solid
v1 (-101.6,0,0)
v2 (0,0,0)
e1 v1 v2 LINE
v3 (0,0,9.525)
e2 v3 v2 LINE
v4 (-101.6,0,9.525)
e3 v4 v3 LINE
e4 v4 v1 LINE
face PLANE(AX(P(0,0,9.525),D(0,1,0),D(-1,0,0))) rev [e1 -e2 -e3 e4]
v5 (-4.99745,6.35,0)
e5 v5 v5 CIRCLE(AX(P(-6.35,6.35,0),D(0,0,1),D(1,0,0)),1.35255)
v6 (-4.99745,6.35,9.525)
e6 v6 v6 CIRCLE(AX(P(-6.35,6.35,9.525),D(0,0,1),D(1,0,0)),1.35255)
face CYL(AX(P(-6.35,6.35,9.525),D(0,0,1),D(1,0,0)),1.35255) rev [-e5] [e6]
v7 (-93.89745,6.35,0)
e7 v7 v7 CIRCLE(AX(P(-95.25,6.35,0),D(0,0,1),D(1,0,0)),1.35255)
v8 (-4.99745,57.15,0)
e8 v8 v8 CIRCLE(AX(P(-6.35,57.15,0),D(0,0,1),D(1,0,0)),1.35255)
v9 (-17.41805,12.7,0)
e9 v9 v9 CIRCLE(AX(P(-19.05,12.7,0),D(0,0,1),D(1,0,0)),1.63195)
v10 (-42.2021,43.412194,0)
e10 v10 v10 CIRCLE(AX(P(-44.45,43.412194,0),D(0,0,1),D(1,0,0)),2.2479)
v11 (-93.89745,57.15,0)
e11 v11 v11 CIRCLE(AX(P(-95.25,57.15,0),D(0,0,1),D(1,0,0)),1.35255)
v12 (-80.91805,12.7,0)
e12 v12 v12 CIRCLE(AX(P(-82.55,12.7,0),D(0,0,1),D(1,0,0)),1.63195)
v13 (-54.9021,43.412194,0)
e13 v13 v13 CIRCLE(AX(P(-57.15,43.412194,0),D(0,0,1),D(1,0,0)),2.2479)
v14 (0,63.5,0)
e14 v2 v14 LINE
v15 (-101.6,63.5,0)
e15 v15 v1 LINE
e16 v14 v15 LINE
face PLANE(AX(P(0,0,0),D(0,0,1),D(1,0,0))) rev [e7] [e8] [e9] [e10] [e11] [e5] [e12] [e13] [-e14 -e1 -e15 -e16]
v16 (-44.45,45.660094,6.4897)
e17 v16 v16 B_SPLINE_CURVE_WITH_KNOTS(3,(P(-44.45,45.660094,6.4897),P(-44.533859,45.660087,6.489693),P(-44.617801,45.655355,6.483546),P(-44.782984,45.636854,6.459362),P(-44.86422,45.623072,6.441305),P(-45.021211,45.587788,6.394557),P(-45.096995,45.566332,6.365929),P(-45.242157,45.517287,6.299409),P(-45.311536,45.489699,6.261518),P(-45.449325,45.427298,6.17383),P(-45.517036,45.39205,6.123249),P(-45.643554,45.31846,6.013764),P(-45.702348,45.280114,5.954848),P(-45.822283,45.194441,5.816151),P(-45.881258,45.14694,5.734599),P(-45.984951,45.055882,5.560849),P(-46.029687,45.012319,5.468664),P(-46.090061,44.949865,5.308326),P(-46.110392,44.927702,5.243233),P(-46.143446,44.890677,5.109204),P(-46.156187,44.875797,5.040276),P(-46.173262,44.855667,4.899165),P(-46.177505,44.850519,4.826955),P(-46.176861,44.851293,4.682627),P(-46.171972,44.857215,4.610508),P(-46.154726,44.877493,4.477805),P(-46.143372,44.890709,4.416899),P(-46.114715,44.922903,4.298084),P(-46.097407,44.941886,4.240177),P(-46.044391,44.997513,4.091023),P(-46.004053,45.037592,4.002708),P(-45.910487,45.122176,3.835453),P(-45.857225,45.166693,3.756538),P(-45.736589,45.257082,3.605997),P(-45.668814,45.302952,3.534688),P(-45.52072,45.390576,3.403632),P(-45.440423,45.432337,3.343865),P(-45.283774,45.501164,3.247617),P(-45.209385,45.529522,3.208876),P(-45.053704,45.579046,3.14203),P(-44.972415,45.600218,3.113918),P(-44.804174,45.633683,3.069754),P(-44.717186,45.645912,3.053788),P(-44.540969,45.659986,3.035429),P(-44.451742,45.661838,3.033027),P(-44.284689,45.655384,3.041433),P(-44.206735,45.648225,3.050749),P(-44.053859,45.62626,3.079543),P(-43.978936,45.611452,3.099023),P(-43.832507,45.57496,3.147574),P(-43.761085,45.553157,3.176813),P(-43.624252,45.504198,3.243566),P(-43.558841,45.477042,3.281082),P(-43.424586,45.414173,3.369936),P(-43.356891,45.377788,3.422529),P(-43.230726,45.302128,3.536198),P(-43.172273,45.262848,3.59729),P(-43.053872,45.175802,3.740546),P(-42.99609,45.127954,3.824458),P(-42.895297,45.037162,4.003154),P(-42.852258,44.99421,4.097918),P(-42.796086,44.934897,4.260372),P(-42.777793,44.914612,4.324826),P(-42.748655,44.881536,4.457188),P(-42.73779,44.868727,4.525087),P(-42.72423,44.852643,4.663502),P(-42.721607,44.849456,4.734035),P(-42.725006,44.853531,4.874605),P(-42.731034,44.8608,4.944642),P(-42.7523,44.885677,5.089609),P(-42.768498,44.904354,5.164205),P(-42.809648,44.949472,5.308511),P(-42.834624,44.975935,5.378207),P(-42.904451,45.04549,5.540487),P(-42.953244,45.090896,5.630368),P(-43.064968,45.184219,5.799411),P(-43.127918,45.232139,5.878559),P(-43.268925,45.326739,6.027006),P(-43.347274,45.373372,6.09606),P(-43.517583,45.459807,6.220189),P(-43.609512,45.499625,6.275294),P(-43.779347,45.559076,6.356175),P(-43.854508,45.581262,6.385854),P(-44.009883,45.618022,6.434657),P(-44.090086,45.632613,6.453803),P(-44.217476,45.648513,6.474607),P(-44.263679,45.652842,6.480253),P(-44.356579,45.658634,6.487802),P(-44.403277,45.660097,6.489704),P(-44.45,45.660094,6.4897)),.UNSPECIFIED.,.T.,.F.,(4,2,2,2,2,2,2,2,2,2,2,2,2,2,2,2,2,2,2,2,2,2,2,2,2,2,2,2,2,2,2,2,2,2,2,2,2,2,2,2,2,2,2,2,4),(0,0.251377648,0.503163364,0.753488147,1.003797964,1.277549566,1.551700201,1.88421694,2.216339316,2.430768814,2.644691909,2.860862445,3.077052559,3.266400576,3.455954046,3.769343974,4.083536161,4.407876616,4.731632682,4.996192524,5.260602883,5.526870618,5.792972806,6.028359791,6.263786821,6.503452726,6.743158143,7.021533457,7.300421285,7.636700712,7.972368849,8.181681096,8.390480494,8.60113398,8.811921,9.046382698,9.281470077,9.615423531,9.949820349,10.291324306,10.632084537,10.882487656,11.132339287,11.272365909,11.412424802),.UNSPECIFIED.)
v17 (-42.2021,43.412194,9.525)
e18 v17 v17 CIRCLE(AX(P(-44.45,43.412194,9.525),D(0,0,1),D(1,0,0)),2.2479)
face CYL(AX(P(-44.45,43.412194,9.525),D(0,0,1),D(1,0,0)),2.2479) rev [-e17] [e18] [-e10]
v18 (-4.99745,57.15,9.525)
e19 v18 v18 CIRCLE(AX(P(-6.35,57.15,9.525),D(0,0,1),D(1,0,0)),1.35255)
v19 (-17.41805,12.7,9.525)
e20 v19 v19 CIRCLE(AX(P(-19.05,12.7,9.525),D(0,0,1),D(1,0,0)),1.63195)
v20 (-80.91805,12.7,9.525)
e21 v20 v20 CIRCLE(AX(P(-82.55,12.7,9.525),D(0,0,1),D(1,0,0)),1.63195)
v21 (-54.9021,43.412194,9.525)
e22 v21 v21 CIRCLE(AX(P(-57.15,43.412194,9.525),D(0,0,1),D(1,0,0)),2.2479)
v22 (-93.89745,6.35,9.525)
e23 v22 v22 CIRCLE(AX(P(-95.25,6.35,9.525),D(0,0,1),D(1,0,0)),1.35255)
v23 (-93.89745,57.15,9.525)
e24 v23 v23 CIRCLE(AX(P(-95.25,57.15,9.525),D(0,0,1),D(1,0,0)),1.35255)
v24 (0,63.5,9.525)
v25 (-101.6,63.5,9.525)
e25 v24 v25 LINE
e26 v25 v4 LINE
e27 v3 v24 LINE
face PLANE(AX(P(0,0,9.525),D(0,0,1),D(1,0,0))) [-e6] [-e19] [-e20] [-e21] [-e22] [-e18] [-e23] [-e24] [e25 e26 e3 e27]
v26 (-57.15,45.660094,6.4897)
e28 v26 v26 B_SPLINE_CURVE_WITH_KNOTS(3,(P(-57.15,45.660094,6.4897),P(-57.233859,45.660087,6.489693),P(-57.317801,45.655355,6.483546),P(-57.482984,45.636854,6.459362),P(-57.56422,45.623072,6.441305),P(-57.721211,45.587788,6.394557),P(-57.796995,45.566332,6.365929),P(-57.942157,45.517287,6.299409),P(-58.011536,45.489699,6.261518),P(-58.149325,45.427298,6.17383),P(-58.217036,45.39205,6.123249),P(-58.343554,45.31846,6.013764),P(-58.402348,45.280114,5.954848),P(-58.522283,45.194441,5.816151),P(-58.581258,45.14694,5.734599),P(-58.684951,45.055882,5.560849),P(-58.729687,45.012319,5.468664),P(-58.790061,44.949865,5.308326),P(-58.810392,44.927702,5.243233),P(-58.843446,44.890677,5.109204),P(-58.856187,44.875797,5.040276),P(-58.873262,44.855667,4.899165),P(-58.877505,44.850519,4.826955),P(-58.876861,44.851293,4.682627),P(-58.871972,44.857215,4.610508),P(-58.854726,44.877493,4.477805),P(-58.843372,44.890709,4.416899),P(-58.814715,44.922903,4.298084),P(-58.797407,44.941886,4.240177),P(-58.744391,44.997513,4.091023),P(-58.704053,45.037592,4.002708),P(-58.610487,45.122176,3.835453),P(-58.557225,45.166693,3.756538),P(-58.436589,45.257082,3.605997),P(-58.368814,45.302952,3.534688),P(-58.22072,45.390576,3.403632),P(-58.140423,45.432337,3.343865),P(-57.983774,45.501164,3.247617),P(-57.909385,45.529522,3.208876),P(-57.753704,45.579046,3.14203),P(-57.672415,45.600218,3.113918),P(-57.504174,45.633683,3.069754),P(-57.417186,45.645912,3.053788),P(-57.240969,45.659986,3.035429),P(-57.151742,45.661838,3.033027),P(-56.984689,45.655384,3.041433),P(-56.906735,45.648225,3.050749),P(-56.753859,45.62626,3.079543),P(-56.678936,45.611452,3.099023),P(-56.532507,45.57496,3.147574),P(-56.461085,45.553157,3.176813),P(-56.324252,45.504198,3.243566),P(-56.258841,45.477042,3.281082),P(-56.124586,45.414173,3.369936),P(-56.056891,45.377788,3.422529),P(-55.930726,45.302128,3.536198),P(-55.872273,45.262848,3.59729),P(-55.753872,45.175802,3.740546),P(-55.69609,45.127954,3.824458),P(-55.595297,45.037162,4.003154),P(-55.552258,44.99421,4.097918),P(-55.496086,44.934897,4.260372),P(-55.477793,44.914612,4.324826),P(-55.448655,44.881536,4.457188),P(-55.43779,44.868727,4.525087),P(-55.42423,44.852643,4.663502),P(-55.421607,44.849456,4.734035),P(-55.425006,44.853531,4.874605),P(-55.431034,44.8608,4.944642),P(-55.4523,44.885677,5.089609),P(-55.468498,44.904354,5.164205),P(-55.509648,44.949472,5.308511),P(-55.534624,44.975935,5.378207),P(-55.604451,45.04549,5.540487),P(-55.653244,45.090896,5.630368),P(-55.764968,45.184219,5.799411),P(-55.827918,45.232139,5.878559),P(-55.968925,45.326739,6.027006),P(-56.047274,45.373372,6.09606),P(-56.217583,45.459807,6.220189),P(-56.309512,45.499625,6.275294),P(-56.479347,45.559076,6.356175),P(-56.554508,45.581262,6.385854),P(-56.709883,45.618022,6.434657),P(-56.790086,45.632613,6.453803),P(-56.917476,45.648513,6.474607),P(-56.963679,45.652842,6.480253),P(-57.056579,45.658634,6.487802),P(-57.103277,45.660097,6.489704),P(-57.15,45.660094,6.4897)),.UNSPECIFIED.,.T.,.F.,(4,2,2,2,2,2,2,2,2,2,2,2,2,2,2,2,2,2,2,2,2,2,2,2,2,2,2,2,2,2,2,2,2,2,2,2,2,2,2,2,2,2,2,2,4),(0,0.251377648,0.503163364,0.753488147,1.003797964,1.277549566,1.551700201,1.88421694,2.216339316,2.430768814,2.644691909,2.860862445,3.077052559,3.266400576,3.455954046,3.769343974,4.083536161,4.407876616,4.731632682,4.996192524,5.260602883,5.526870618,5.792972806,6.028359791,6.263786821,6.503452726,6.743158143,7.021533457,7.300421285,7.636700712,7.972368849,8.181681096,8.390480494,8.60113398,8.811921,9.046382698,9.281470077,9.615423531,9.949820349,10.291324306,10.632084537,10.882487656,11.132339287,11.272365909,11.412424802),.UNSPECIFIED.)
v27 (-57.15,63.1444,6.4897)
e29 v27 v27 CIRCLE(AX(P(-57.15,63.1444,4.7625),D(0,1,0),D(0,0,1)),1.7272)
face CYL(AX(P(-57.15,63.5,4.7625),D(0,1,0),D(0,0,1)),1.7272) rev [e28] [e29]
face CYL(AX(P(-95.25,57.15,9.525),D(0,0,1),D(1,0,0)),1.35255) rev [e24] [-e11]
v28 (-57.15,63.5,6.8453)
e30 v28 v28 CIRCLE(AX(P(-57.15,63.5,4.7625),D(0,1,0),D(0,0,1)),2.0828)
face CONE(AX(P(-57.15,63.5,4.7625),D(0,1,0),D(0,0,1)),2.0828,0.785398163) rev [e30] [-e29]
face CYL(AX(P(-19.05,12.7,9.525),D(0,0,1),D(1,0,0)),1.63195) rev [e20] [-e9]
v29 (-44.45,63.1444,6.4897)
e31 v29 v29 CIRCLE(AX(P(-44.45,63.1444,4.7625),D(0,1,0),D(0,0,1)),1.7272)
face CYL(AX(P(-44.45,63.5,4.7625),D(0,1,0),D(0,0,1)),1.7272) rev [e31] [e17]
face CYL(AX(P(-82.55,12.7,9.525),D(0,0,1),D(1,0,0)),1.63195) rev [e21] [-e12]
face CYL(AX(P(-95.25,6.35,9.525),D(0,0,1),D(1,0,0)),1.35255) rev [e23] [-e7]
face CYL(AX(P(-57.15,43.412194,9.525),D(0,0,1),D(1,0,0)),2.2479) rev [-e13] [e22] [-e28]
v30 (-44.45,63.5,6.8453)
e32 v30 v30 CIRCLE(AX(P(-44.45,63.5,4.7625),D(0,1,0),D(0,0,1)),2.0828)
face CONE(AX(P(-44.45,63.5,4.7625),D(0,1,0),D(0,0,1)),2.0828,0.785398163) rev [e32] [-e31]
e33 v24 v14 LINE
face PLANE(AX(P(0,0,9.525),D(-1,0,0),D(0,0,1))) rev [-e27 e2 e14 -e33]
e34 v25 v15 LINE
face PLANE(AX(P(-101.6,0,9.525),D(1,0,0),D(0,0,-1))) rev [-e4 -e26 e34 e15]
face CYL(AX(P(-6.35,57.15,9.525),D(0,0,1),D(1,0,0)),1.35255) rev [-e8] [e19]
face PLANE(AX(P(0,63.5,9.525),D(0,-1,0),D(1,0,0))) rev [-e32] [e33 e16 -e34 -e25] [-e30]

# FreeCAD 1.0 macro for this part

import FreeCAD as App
import Part
import Sketcher
Q = App.Units.Quantity

doc = App.newDocument("Part")
body = doc.addObject("PartDesign::Body", "Body")

# Sketch on XY plane
sketch1 = body.newObject("Sketcher::SketchObject", "Sketch")
sketch1.AttachmentSupport = (doc.getObject("XY_Plane"), [""])
sketch1.MapMode = "FlatFace"
sketch1.addGeometry(Part.LineSegment(App.Vector(-101.6, 63.5, 0), App.Vector(-101.6, 0, 0)), False)
sketch1.addGeometry(Part.LineSegment(App.Vector(-101.6, 0, 0), App.Vector(0, 0, 0)), False)
sketch1.addGeometry(Part.LineSegment(App.Vector(0, 0, 0), App.Vector(0, 63.5, 0)), False)
sketch1.addGeometry(Part.LineSegment(App.Vector(0, 63.5, 0), App.Vector(-101.6, 63.5, 0)), False)
sketch1.addConstraint(Sketcher.Constraint("Coincident", 0, 2, 1, 1))
sketch1.addConstraint(Sketcher.Constraint("Coincident", 1, 2, 2, 1))
sketch1.addConstraint(Sketcher.Constraint("Coincident", 2, 2, 3, 1))
sketch1.addConstraint(Sketcher.Constraint("Coincident", 3, 2, 0, 1))
sketch1.addConstraint(Sketcher.Constraint("Vertical", 0))
sketch1.addConstraint(Sketcher.Constraint("Horizontal", 1))
sketch1.addConstraint(Sketcher.Constraint("Vertical", 2))
sketch1.addConstraint(Sketcher.Constraint("Horizontal", 3))
sketch1.addConstraint(Sketcher.Constraint("Coincident", 1, 2, -1, 1))
sketch1.addConstraint(Sketcher.Constraint("DistanceX", 1, 1, 1, 2, Q("4 in")))
sketch1.addConstraint(Sketcher.Constraint("DistanceY", 0, 2, 0, 1, Q("2.5 in")))
pad1 = body.newObject("PartDesign::Pad", "Pad")
pad1.Profile = sketch1
pad1.Length = Q("0.375 in")

# Sketch on XZ plane
sketch2 = body.newObject("Sketcher::SketchObject", "Sketch001")
sketch2.AttachmentSupport = (doc.getObject("XZ_Plane"), [""])
sketch2.MapMode = "FlatFace"
sketch2.AttachmentOffset = App.Placement(App.Vector(0, 0, -2.5 * 25.4), App.Rotation())
sketch2.addGeometry(Part.Circle(App.Vector(-44.45, 4.7625, 0), App.Vector(0, 0, 1), 1.7272), False)
sketch2.addGeometry(Part.Circle(App.Vector(-57.15, 4.7625, 0), App.Vector(0, 0, 1), 1.7272), False)
sketch2.addConstraint(Sketcher.Constraint("Equal", 0, 1))
sketch2.addConstraint(Sketcher.Constraint("Horizontal", 0, 3, 1, 3))
sketch2.addConstraint(Sketcher.Constraint("Diameter", 0, Q("0.136 in")))
sketch2.addConstraint(Sketcher.Constraint("DistanceX", 1, 3, 0, 3, Q("0.5 in")))
sketch2.addConstraint(Sketcher.Constraint("DistanceX", 0, 3, -1, 1, Q("1.75 in")))
sketch2.addConstraint(Sketcher.Constraint("DistanceY", -1, 1, 0, 3, Q("0.1875 in")))
doc.recompute()
hole = body.newObject("PartDesign::Hole", "Hole")
hole.Profile = sketch2
hole.ThreadType = "None"
hole.Diameter = Q("0.136 in")
hole.DepthType = "Dimension"
hole.Depth = Q("0.75 in")
hole.DrillPoint = "Angled"
hole.DrillPointAngle = 118
hole.HoleCutType = "Countersink"
hole.HoleCutDiameter = Q("0.164 in")
hole.HoleCutCountersinkAngle = 90
hole.Reversed = True

# Sketch on XY plane
sketch3 = body.newObject("Sketcher::SketchObject", "Sketch002")
sketch3.AttachmentSupport = (doc.getObject("XY_Plane"), [""])
sketch3.MapMode = "FlatFace"
sketch3.AttachmentOffset = App.Placement(App.Vector(0, 0, 0.375 * 25.4), App.Rotation())
sketch3.addGeometry(Part.Circle(App.Vector(-44.45, 43.412194, 0), App.Vector(0, 0, 1), 2.2479), False)
sketch3.addGeometry(Part.Circle(App.Vector(-57.15, 43.412194, 0), App.Vector(0, 0, 1), 2.2479), False)
sketch3.addConstraint(Sketcher.Constraint("Equal", 0, 1))
sketch3.addConstraint(Sketcher.Constraint("Horizontal", 0, 3, 1, 3))
sketch3.addConstraint(Sketcher.Constraint("Diameter", 0, Q("0.177 in")))
sketch3.addConstraint(Sketcher.Constraint("DistanceX", 1, 3, 0, 3, Q("0.5 in")))
sketch3.addConstraint(Sketcher.Constraint("DistanceX", 0, 3, -1, 1, Q("1.75 in")))
sketch3.addConstraint(Sketcher.Constraint("DistanceY", -1, 1, 0, 3, 43.412194))
doc.recompute()
hole2 = body.newObject("PartDesign::Hole", "Hole001")
hole2.Profile = sketch3
hole2.ThreadType = "None"
hole2.Diameter = Q("0.177 in")
hole2.DepthType = "Dimension"
hole2.Depth = Q("1 in")
hole2.DrillPoint = "Angled"
hole2.DrillPointAngle = 118

# Sketch on XY plane
sketch4 = body.newObject("Sketcher::SketchObject", "Sketch003")
sketch4.AttachmentSupport = (doc.getObject("XY_Plane"), [""])
sketch4.MapMode = "FlatFace"
sketch4.AttachmentOffset = App.Placement(App.Vector(0, 0, 0.375 * 25.4), App.Rotation())
sketch4.addGeometry(Part.Circle(App.Vector(-95.25, 6.35, 0), App.Vector(0, 0, 1), 1.35255), False)
sketch4.addGeometry(Part.Circle(App.Vector(-95.25, 57.15, 0), App.Vector(0, 0, 1), 1.35255), False)
sketch4.addGeometry(Part.Circle(App.Vector(-6.35, 6.35, 0), App.Vector(0, 0, 1), 1.35255), False)
sketch4.addGeometry(Part.Circle(App.Vector(-6.35, 57.15, 0), App.Vector(0, 0, 1), 1.35255), False)
sketch4.addConstraint(Sketcher.Constraint("Equal", 0, 1))
sketch4.addConstraint(Sketcher.Constraint("Equal", 1, 2))
sketch4.addConstraint(Sketcher.Constraint("Equal", 2, 3))
sketch4.addConstraint(Sketcher.Constraint("Horizontal", 0, 3, 2, 3))
sketch4.addConstraint(Sketcher.Constraint("Horizontal", 1, 3, 3, 3))
sketch4.addConstraint(Sketcher.Constraint("Vertical", 0, 3, 1, 3))
sketch4.addConstraint(Sketcher.Constraint("Vertical", 2, 3, 3, 3))
sketch4.addConstraint(Sketcher.Constraint("DistanceY", 0, 3, 1, 3, Q("2 in")))
sketch4.addConstraint(Sketcher.Constraint("Diameter", 0, Q("0.1065 in")))
sketch4.addConstraint(Sketcher.Constraint("DistanceX", 0, 3, 2, 3, Q("3.5 in")))
sketch4.addConstraint(Sketcher.Constraint("DistanceX", 0, 3, -1, 1, Q("3.75 in")))
sketch4.addConstraint(Sketcher.Constraint("DistanceY", -1, 1, 0, 3, Q("0.25 in")))
doc.recompute()
hole3 = body.newObject("PartDesign::Hole", "Hole002")
hole3.Profile = sketch4
hole3.ThreadType = "None"
hole3.Diameter = Q("0.1065 in")
hole3.DepthType = "ThroughAll"

# Sketch on XY plane
sketch5 = body.newObject("Sketcher::SketchObject", "Sketch004")
sketch5.AttachmentSupport = (doc.getObject("XY_Plane"), [""])
sketch5.MapMode = "FlatFace"
sketch5.AttachmentOffset = App.Placement(App.Vector(0, 0, 0.375 * 25.4), App.Rotation())
sketch5.addGeometry(Part.Circle(App.Vector(-82.55, 12.7, 0), App.Vector(0, 0, 1), 1.63195), False)
sketch5.addGeometry(Part.Circle(App.Vector(-19.05, 12.7, 0), App.Vector(0, 0, 1), 1.63195), False)
sketch5.addConstraint(Sketcher.Constraint("Equal", 0, 1))
sketch5.addConstraint(Sketcher.Constraint("Horizontal", 0, 3, 1, 3))
sketch5.addConstraint(Sketcher.Constraint("Diameter", 0, Q("0.1285 in")))
sketch5.addConstraint(Sketcher.Constraint("DistanceY", -1, 1, 0, 3, Q("0.5 in")))
sketch5.addConstraint(Sketcher.Constraint("DistanceX", 0, 3, 1, 3, Q("2.5 in")))
sketch5.addConstraint(Sketcher.Constraint("DistanceX", 0, 3, -1, 1, Q("3.25 in")))
doc.recompute()
hole4 = body.newObject("PartDesign::Hole", "Hole003")
hole4.Profile = sketch5
hole4.ThreadType = "None"
hole4.Diameter = Q("0.1285 in")
hole4.DepthType = "Dimension"
hole4.Depth = Q("0.375 in")
hole4.DrillPoint = "Flat"

doc.recompute()
